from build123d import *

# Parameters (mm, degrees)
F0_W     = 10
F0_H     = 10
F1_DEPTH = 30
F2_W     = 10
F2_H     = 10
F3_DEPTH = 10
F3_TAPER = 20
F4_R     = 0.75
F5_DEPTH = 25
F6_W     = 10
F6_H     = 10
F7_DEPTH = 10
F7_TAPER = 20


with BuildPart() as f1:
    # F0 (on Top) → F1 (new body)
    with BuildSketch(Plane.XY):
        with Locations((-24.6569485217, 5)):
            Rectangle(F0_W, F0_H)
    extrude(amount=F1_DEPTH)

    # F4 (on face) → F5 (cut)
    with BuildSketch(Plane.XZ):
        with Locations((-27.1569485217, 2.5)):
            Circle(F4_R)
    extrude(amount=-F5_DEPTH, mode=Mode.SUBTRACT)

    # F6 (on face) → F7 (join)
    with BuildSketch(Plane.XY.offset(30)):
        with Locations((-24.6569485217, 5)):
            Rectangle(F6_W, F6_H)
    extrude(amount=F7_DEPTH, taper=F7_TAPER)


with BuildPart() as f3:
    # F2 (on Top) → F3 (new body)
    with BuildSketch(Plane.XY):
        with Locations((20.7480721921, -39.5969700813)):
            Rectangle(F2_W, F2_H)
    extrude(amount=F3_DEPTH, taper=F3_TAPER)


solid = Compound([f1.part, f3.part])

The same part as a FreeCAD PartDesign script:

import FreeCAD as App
import Part
import Sketcher

V = App.Vector
Q = App.Units.Quantity

doc = App.newDocument("Part")
body = doc.addObject("PartDesign::Body", "Body")

# Sketch on XY plane
sketch1 = body.newObject("Sketcher::SketchObject", "Sketch")
sketch1.AttachmentSupport = (doc.getObject("XY_Plane"), [""])
sketch1.MapMode = "FlatFace"
sketch1.addGeometry([
    Part.LineSegment(V(-30, 10, 0), V(-30, 0, 0)),
    Part.LineSegment(V(-30, 0, 0), V(-20, 0, 0)),
    Part.LineSegment(V(-20, 0, 0), V(-20, 10, 0)),
    Part.LineSegment(V(-20, 10, 0), V(-30, 10, 0)),
], False)
sketch1.addConstraint([
    Sketcher.Constraint("Coincident", 0, 2, 1, 1),
    Sketcher.Constraint("Coincident", 1, 2, 2, 1),
    Sketcher.Constraint("Coincident", 2, 2, 3, 1),
    Sketcher.Constraint("Coincident", 3, 2, 0, 1),
    Sketcher.Constraint("Vertical", 0),
    Sketcher.Constraint("Horizontal", 1),
    Sketcher.Constraint("Vertical", 2),
    Sketcher.Constraint("Horizontal", 3),
    Sketcher.Constraint("PointOnObject", 0, 2, -1),
    Sketcher.Constraint("Equal", 3, 0),
    Sketcher.Constraint("DistanceX", 1, 1, 1, 2, Q("10 mm")),
    Sketcher.Constraint("DistanceX", 0, 2, -1, 1, Q("29.656949 mm")),
])
pad1 = body.newObject("PartDesign::Pad", "Pad")
pad1.Profile = sketch1
pad1.Length = 30

# Sketch on XZ plane
sketch2 = body.newObject("Sketcher::SketchObject", "Sketch001")
sketch2.AttachmentSupport = (doc.getObject("XZ_Plane"), [""])
sketch2.MapMode = "FlatFace"
sketch2.addGeometry(Part.Circle(V(-27.2, 2.5, 0), V(0, 0, 1), 0.8), False)
sketch2.addConstraint([
    Sketcher.Constraint("Diameter", 0, Q("1.5 mm")),
    Sketcher.Constraint("DistanceY", -1, 1, 0, 3, Q("2.5 mm")),
    Sketcher.Constraint("DistanceX", 0, 3, -1, 1, Q("27.156949 mm")),
])
pocket1 = body.newObject("PartDesign::Pocket", "Pocket")
pocket1.Profile = sketch2
pocket1.Length = 25

# Sketch on XY plane
sketch3 = body.newObject("Sketcher::SketchObject", "Sketch002")
sketch3.AttachmentSupport = (doc.getObject("XY_Plane"), [""])
sketch3.MapMode = "FlatFace"
sketch3.AttachmentOffset = App.Placement(V(0, 0, 30), App.Rotation())
sketch3.addGeometry([
    Part.LineSegment(V(-30, 10, 0), V(-30, 0, 0)),
    Part.LineSegment(V(-30, 0, 0), V(-20, 0, 0)),
    Part.LineSegment(V(-20, 0, 0), V(-20, 10, 0)),
    Part.LineSegment(V(-20, 10, 0), V(-30, 10, 0)),
], False)
sketch3.addConstraint([
    Sketcher.Constraint("Coincident", 0, 2, 1, 1),
    Sketcher.Constraint("Coincident", 1, 2, 2, 1),
    Sketcher.Constraint("Coincident", 2, 2, 3, 1),
    Sketcher.Constraint("Coincident", 3, 2, 0, 1),
    Sketcher.Constraint("Vertical", 0),
    Sketcher.Constraint("Horizontal", 1),
    Sketcher.Constraint("Vertical", 2),
    Sketcher.Constraint("Horizontal", 3),
    Sketcher.Constraint("PointOnObject", 0, 2, -1),
    Sketcher.Constraint("Equal", 3, 0),
    Sketcher.Constraint("DistanceX", 1, 1, 1, 2, Q("10 mm")),
    Sketcher.Constraint("DistanceX", 0, 2, -1, 1, Q("29.656949 mm")),
])
pad2 = body.newObject("PartDesign::Pad", "Pad001")
pad2.Profile = sketch3
pad2.Length = 10
pad2.TaperAngle = -20
body2 = doc.addObject("PartDesign::Body", "Body001")

# Sketch on XY plane
sketch4 = body2.newObject("Sketcher::SketchObject", "Sketch003")
sketch4.AttachmentSupport = (doc.getObject("XY_Plane001"), [""])
sketch4.MapMode = "FlatFace"
sketch4.addGeometry([
    Part.LineSegment(V(16, -35, 0), V(16, -45, 0)),
    Part.LineSegment(V(16, -45, 0), V(26, -45, 0)),
    Part.LineSegment(V(26, -45, 0), V(26, -35, 0)),
    Part.LineSegment(V(26, -35, 0), V(16, -35, 0)),
], False)
sketch4.addConstraint([
    Sketcher.Constraint("Coincident", 0, 2, 1, 1),
    Sketcher.Constraint("Coincident", 1, 2, 2, 1),
    Sketcher.Constraint("Coincident", 2, 2, 3, 1),
    Sketcher.Constraint("Coincident", 3, 2, 0, 1),
    Sketcher.Constraint("Vertical", 0),
    Sketcher.Constraint("Horizontal", 1),
    Sketcher.Constraint("Vertical", 2),
    Sketcher.Constraint("Horizontal", 3),
    Sketcher.Constraint("Equal", 3, 0),
    Sketcher.Constraint("DistanceX", 1, 1, 1, 2, Q("10 mm")),
    Sketcher.Constraint("DistanceY", 0, 2, -1, 1, Q("44.59697 mm")),
    Sketcher.Constraint("DistanceX", -1, 1, 0, 2, Q("15.748072 mm")),
])
pad3 = body2.newObject("PartDesign::Pad", "Pad002")
pad3.Profile = sketch4
pad3.Length = 10
pad3.TaperAngle = -20

doc.recompute()
